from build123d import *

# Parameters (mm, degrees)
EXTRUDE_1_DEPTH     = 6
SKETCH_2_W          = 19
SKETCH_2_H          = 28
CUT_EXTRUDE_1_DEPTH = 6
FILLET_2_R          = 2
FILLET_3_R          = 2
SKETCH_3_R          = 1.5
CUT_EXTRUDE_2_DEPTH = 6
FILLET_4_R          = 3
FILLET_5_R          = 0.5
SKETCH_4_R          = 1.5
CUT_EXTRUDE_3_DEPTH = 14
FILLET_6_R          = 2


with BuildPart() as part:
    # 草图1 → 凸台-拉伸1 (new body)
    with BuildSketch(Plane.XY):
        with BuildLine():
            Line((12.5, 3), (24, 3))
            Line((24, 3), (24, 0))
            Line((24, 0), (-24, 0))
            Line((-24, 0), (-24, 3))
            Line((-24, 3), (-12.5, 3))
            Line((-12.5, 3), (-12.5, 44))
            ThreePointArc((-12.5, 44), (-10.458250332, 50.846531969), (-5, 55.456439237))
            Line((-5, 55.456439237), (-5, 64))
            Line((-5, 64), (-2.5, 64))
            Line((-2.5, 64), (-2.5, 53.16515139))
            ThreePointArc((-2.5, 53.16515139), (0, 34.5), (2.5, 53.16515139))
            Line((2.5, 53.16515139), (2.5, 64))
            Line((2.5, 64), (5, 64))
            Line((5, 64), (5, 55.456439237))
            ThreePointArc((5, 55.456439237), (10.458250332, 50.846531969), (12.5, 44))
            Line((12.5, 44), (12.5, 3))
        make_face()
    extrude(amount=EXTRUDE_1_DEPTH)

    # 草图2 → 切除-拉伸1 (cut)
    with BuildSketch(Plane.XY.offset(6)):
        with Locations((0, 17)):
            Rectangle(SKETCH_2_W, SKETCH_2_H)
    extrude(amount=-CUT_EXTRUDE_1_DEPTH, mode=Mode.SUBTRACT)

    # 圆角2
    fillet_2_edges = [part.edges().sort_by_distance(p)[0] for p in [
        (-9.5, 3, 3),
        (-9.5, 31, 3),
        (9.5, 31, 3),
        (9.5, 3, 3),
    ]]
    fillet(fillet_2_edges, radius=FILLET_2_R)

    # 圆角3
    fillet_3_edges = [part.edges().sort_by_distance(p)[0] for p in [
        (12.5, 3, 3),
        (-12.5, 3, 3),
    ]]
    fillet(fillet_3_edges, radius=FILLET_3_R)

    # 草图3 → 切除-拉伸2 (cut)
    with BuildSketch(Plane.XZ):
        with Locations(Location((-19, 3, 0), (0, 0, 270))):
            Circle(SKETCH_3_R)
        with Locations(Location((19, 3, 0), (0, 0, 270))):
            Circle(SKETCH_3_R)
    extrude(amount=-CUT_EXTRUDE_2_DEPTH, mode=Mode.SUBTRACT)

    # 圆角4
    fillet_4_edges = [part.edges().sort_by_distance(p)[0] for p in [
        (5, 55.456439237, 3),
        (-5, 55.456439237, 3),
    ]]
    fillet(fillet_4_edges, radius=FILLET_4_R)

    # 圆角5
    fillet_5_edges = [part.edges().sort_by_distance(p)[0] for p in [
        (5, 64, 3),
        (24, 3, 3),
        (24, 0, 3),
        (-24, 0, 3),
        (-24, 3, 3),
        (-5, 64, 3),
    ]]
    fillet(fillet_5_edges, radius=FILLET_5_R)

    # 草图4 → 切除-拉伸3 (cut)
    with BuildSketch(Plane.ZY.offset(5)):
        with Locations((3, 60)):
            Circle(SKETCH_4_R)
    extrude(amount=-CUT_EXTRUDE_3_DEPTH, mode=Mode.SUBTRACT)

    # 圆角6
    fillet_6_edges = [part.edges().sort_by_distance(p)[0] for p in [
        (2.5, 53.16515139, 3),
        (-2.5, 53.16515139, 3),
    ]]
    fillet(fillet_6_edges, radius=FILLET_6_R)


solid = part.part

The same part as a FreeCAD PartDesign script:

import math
import FreeCAD as App
import Part
import Sketcher
from FreeCAD import Vector


def edges_at(feature, points):
    """Names of the edges that pass closest to the given points."""
    edges = feature.Shape.Edges
    near = lambda p: min(range(len(edges)), key=lambda i: edges[i].distToShape(Part.Vertex(*p))[0])
    return sorted({f"Edge{near(p) + 1}" for p in points})

doc = App.newDocument("Part")
params = doc.addObject("Spreadsheet::Sheet", "Params")
for row, (alias, value) in enumerate([
    ("sketch1_radius", "12.5 mm"),
    ("sketch1_radius2", "9.5 mm"),
    ("sketch1_width", "48 mm"),
    ("sketch1_height", "41 mm"),
    ("sketch1_height2", "3 mm"),
    ("pad1_length", "6 mm"),
    ("sketch2_width", "19 mm"),
    ("sketch2_height", "28 mm"),
    ("pocket1_length", "6 mm"),
    ("fillet_radius", "2 mm"),
    ("fillet2_radius", "2 mm"),
    ("sketch3_diameter", "3 mm"),
    ("pocket2_length", "6 mm"),
    ("fillet3_radius", "3 mm"),
    ("fillet4_radius", "0.5 mm"),
    ("sketch4_diameter", "3 mm"),
    ("pocket3_length", "14 mm"),
    ("fillet5_radius", "2 mm"),
], start=1):
    params.set(f"A{row}", alias)
    params.set(f"B{row}", "=" + value)
    params.setAlias(f"B{row}", alias)

body = doc.addObject("PartDesign::Body", "Body")

sketch1 = body.newObject("Sketcher::SketchObject", "Sketch")
sketch1.AttachmentSupport = (doc.getObject("XY_Plane"), [""])
sketch1.MapMode = "FlatFace"
sketch1.addGeometry(Part.LineSegment(Vector(24, 3, 0), Vector(12.5, 3, 0)), False)
sketch1.addGeometry(Part.LineSegment(Vector(12.5, 3, 0), Vector(12.5, 44, 0)), False)
sketch1.addGeometry(Part.ArcOfCircle(Part.Circle(Vector(0, 44, 0), Vector(0, 0, 1), 12.5), math.radians(0), math.radians(66.421822)), False)
sketch1.addGeometry(Part.LineSegment(Vector(5, 55.456439, 0), Vector(5, 64, 0)), False)
sketch1.addGeometry(Part.LineSegment(Vector(5, 64, 0), Vector(2.5, 64, 0)), False)
sketch1.addGeometry(Part.LineSegment(Vector(2.5, 64, 0), Vector(2.5, 53.165151, 0)), False)
sketch1.addGeometry(Part.ArcOfCircle(Part.Circle(Vector(0, 44, 0), Vector(0, 0, 1), 9.5), math.radians(105.257523), math.radians(434.742477)), False)
sketch1.addGeometry(Part.LineSegment(Vector(-2.5, 53.165151, 0), Vector(-2.5, 64, 0)), False)
sketch1.addGeometry(Part.LineSegment(Vector(-2.5, 64, 0), Vector(-5, 64, 0)), False)
sketch1.addGeometry(Part.LineSegment(Vector(-5, 64, 0), Vector(-5, 55.456439, 0)), False)
sketch1.addGeometry(Part.ArcOfCircle(Part.Circle(Vector(0, 44, 0), Vector(0, 0, 1), 12.5), math.radians(113.578178), math.radians(180)), False)
sketch1.addGeometry(Part.LineSegment(Vector(-12.5, 44, 0), Vector(-12.5, 3, 0)), False)
sketch1.addGeometry(Part.LineSegment(Vector(-12.5, 3, 0), Vector(-24, 3, 0)), False)
sketch1.addGeometry(Part.LineSegment(Vector(-24, 3, 0), Vector(-24, 0, 0)), False)
sketch1.addGeometry(Part.LineSegment(Vector(-24, 0, 0), Vector(24, 0, 0)), False)
sketch1.addGeometry(Part.LineSegment(Vector(24, 0, 0), Vector(24, 3, 0)), False)
sketch1.addConstraint(Sketcher.Constraint("Coincident", 0, 2, 1, 1))
sketch1.addConstraint(Sketcher.Constraint("Tangent", 1, 2, 2, 1))
sketch1.addConstraint(Sketcher.Constraint("Coincident", 2, 2, 3, 1))
sketch1.addConstraint(Sketcher.Constraint("Coincident", 3, 2, 4, 1))
sketch1.addConstraint(Sketcher.Constraint("Coincident", 4, 2, 5, 1))
sketch1.addConstraint(Sketcher.Constraint("Coincident", 5, 2, 6, 2))
sketch1.addConstraint(Sketcher.Constraint("Coincident", 6, 1, 7, 1))
sketch1.addConstraint(Sketcher.Constraint("Coincident", 7, 2, 8, 1))
sketch1.addConstraint(Sketcher.Constraint("Coincident", 8, 2, 9, 1))
sketch1.addConstraint(Sketcher.Constraint("Coincident", 9, 2, 10, 1))
sketch1.addConstraint(Sketcher.Constraint("Tangent", 10, 2, 11, 1))
sketch1.addConstraint(Sketcher.Constraint("Coincident", 11, 2, 12, 1))
sketch1.addConstraint(Sketcher.Constraint("Coincident", 12, 2, 13, 1))
sketch1.addConstraint(Sketcher.Constraint("Coincident", 13, 2, 14, 1))
sketch1.addConstraint(Sketcher.Constraint("Coincident", 14, 2, 15, 1))
sketch1.addConstraint(Sketcher.Constraint("Coincident", 15, 2, 0, 1))
sketch1.addConstraint(Sketcher.Constraint("Horizontal", 0))
sketch1.addConstraint(Sketcher.Constraint("Vertical", 1))
sketch1.addConstraint(Sketcher.Constraint("Vertical", 3))
sketch1.addConstraint(Sketcher.Constraint("Horizontal", 4))
sketch1.addConstraint(Sketcher.Constraint("Vertical", 5))
sketch1.addConstraint(Sketcher.Constraint("Vertical", 7))
sketch1.addConstraint(Sketcher.Constraint("Horizontal", 8))
sketch1.addConstraint(Sketcher.Constraint("Vertical", 9))
sketch1.addConstraint(Sketcher.Constraint("Vertical", 11))
sketch1.addConstraint(Sketcher.Constraint("Horizontal", 12))
sketch1.addConstraint(Sketcher.Constraint("Vertical", 13))
sketch1.addConstraint(Sketcher.Constraint("Horizontal", 14))
sketch1.addConstraint(Sketcher.Constraint("Vertical", 15))
sketch1.addConstraint(Sketcher.Constraint("Coincident", 6, 3, 2, 3))
sketch1.addConstraint(Sketcher.Constraint("Coincident", 10, 3, 2, 3))
sketch1.addConstraint(Sketcher.Constraint("Equal", 2, 10))
sketch1.addConstraint(Sketcher.Constraint("Symmetric", 13, 2, 14, 2, -1, 1))
sketch1.addConstraint(Sketcher.Constraint("Symmetric", 5, 2, 6, 1, -2))
sketch1.addConstraint(Sketcher.Constraint("Symmetric", 3, 2, 8, 2, -2))
sketch1.addConstraint(Sketcher.Constraint("Horizontal", 0, 2, 11, 2))
sketch1.addConstraint(Sketcher.Constraint("Radius", 2, 12.5))
sketch1.addConstraint(Sketcher.Constraint("Radius", 6, 9.5))
sketch1.addConstraint(Sketcher.Constraint("DistanceX", 14, 1, 14, 2, 48.0))
sketch1.addConstraint(Sketcher.Constraint("DistanceY", 1, 1, 1, 2, 41.0))
sketch1.addConstraint(Sketcher.Constraint("DistanceY", 13, 2, 13, 1, 3.0))
sketch1.addConstraint(Sketcher.Constraint("DistanceX", 4, 2, 4, 1, 2.5))
sketch1.addConstraint(Sketcher.Constraint("DistanceX", -1, 1, 2, 2, 5.0))
sketch1.addConstraint(Sketcher.Constraint("DistanceY", -1, 1, 3, 2, 64.0))
sketch1.setExpression("Constraints[36]", "Params.sketch1_radius")
sketch1.setExpression("Constraints[37]", "Params.sketch1_radius2")
sketch1.setExpression("Constraints[38]", "Params.sketch1_width")
sketch1.setExpression("Constraints[39]", "Params.sketch1_height")
sketch1.setExpression("Constraints[40]", "Params.sketch1_height2")
pad1 = body.newObject("PartDesign::Pad", "Pad")
pad1.Profile = sketch1
pad1.setExpression("Length", "Params.pad1_length")

sketch2 = body.newObject("Sketcher::SketchObject", "Sketch001")
sketch2.AttachmentSupport = (doc.getObject("XY_Plane"), [""])
sketch2.MapMode = "FlatFace"
sketch2.AttachmentOffset = App.Placement(Vector(0, 0, 6), App.Rotation())
sketch2.addGeometry(Part.LineSegment(Vector(-9.5, 31, 0), Vector(-9.5, 3, 0)), False)
sketch2.addGeometry(Part.LineSegment(Vector(-9.5, 3, 0), Vector(9.5, 3, 0)), False)
sketch2.addGeometry(Part.LineSegment(Vector(9.5, 3, 0), Vector(9.5, 31, 0)), False)
sketch2.addGeometry(Part.LineSegment(Vector(9.5, 31, 0), Vector(-9.5, 31, 0)), False)
sketch2.addConstraint(Sketcher.Constraint("Coincident", 0, 2, 1, 1))
sketch2.addConstraint(Sketcher.Constraint("Coincident", 1, 2, 2, 1))
sketch2.addConstraint(Sketcher.Constraint("Coincident", 2, 2, 3, 1))
sketch2.addConstraint(Sketcher.Constraint("Coincident", 3, 2, 0, 1))
sketch2.addConstraint(Sketcher.Constraint("Vertical", 0))
sketch2.addConstraint(Sketcher.Constraint("Horizontal", 1))
sketch2.addConstraint(Sketcher.Constraint("Vertical", 2))
sketch2.addConstraint(Sketcher.Constraint("Horizontal", 3))
sketch2.addConstraint(Sketcher.Constraint("DistanceX", 1, 1, 1, 2, 19.0))
sketch2.addConstraint(Sketcher.Constraint("DistanceY", 0, 2, 0, 1, 28.0))
sketch2.addConstraint(Sketcher.Constraint("DistanceY", -1, 1, 0, 2, 3.0))
sketch2.addConstraint(Sketcher.Constraint("DistanceX", 0, 2, -1, 1, 9.5))
sketch2.setExpression("Constraints[8]", "Params.sketch2_width")
sketch2.setExpression("Constraints[9]", "Params.sketch2_height")
pocket1 = body.newObject("PartDesign::Pocket", "Pocket")
pocket1.Profile = sketch2
pocket1.setExpression("Length", "Params.pocket1_length")
doc.recompute()

fillet = body.newObject("PartDesign::Fillet", "Fillet")
fillet.Base = (pocket1, edges_at(pocket1, [
    (-9.5, 3, 3),
    (-9.5, 31, 3),
    (9.5, 31, 3),
    (9.5, 3, 3),
]))
fillet.setExpression("Radius", "Params.fillet_radius")
doc.recompute()

fillet2 = body.newObject("PartDesign::Fillet", "Fillet001")
fillet2.Base = (fillet, edges_at(fillet, [(12.5, 3, 3), (-12.5, 3, 3)]))
fillet2.setExpression("Radius", "Params.fillet2_radius")

sketch3 = body.newObject("Sketcher::SketchObject", "Sketch002")
sketch3.AttachmentSupport = (doc.getObject("XZ_Plane"), [""])
sketch3.MapMode = "FlatFace"
sketch3.addGeometry(Part.Circle(Vector(-19, 3, 0), Vector(0, 0, 1), 1.5), False)
sketch3.addGeometry(Part.Circle(Vector(19, 3, 0), Vector(0, 0, 1), 1.5), False)
sketch3.addConstraint(Sketcher.Constraint("Equal", 0, 1))
sketch3.addConstraint(Sketcher.Constraint("Symmetric", 0, 3, 1, 3, -2))
sketch3.addConstraint(Sketcher.Constraint("Diameter", 0, 3.0))
sketch3.addConstraint(Sketcher.Constraint("DistanceX", 0, 3, -1, 1, 19.0))
sketch3.addConstraint(Sketcher.Constraint("DistanceY", -1, 1, 0, 3, 3.0))
sketch3.setExpression("Constraints[2]", "Params.sketch3_diameter")
pocket2 = body.newObject("PartDesign::Pocket", "Pocket001")
pocket2.Profile = sketch3
pocket2.setExpression("Length", "Params.pocket2_length")
doc.recompute()

fillet3 = body.newObject("PartDesign::Fillet", "Fillet002")
fillet3.Base = (pocket2, edges_at(pocket2, [(5, 55.456, 3), (-5, 55.456, 3)]))
fillet3.setExpression("Radius", "Params.fillet3_radius")
doc.recompute()

fillet4 = body.newObject("PartDesign::Fillet", "Fillet003")
fillet4.Base = (fillet3, edges_at(fillet3, [
    (5, 64, 3),
    (24, 3, 3),
    (24, 0, 3),
    (-24, 0, 3),
    (-24, 3, 3),
    (-5, 64, 3),
]))
fillet4.setExpression("Radius", "Params.fillet4_radius")

sketch4 = body.newObject("Sketcher::SketchObject", "Sketch003")
sketch4.AttachmentSupport = (doc.getObject("YZ_Plane"), [""])
sketch4.MapMode = "FlatFace"
sketch4.AttachmentOffset = App.Placement(Vector(0, 0, -5), App.Rotation())
sketch4.addGeometry(Part.Circle(Vector(60, 3, 0), Vector(0, 0, 1), 1.5), False)
sketch4.addConstraint(Sketcher.Constraint("Diameter", 0, 3.0))
sketch4.addConstraint(Sketcher.Constraint("DistanceX", -1, 1, 0, 3, 60.0))
sketch4.addConstraint(Sketcher.Constraint("DistanceY", -1, 1, 0, 3, 3.0))
sketch4.setExpression("Constraints[0]", "Params.sketch4_diameter")
pocket3 = body.newObject("PartDesign::Pocket", "Pocket002")
pocket3.Profile = sketch4
pocket3.setExpression("Length", "Params.pocket3_length")
pocket3.Reversed = True
doc.recompute()

fillet5 = body.newObject("PartDesign::Fillet", "Fillet004")
fillet5.Base = (pocket3, edges_at(pocket3, [(2.5, 53.165, 3), (-2.5, 53.165, 3)]))
fillet5.setExpression("Radius", "Params.fillet5_radius")

doc.recompute()
